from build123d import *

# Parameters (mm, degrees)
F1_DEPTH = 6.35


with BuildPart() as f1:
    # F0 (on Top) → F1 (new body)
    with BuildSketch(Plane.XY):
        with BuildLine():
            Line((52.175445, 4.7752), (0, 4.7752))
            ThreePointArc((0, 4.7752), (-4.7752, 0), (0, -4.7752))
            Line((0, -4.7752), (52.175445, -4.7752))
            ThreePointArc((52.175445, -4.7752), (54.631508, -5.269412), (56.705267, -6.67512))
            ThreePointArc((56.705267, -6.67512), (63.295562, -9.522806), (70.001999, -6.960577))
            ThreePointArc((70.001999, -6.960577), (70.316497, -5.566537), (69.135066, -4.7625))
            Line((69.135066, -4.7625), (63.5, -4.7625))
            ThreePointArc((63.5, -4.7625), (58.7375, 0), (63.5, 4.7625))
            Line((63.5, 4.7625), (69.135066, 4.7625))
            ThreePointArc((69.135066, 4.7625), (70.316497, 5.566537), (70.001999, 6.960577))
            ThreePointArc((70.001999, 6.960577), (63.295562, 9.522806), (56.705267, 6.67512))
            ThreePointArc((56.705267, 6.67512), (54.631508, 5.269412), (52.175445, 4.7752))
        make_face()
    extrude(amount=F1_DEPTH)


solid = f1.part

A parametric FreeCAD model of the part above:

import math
import FreeCAD as App
import Part
import Sketcher

V = App.Vector
Q = App.Units.Quantity

doc = App.newDocument("Part")
body = doc.addObject("PartDesign::Body", "Body")

# Sketch on XY plane
sketch1 = body.newObject("Sketcher::SketchObject", "Sketch")
sketch1.AttachmentSupport = (doc.getObject("XY_Plane"), [""])
sketch1.MapMode = "FlatFace"
sketch1.addGeometry(Part.LineSegment(V(52.2, 4.8, 0), V(0, 4.8, 0)), False)
sketch1.addGeometry(Part.ArcOfCircle(Part.Circle(V(0, 0, 0), V(0, 0, 1), 4.8), math.radians(90), math.radians(270)), False)
sketch1.addGeometry(Part.LineSegment(V(0, -4.8, 0), V(52.2, -4.8, 0)), False)
sketch1.addGeometry(Part.ArcOfCircle(Part.Circle(V(52.2, -11.1, 0), V(0, 0, 1), 6.4), math.radians(44), math.radians(90)), False)
sketch1.addGeometry(Part.ArcOfCircle(Part.Circle(V(63.5, 0, 0), V(0, 0, 1), 9.5), math.radians(-136), math.radians(-47)), False)
sketch1.addGeometry(Part.ArcOfCircle(Part.Circle(V(69.1, -6, 0), V(0, 0, 1), 1.3), math.radians(-47), math.radians(90)), False)
sketch1.addGeometry(Part.LineSegment(V(69.1, -4.8, 0), V(63.5, -4.8, 0)), False)
sketch1.addGeometry(Part.ArcOfCircle(Part.Circle(V(63.5, 0, 0), V(0, 0, 1), 4.8), math.radians(90), math.radians(270)), False)
sketch1.addGeometry(Part.LineSegment(V(63.5, 4.8, 0), V(69.1, 4.8, 0)), False)
sketch1.addGeometry(Part.ArcOfCircle(Part.Circle(V(69.1, 6, 0), V(0, 0, 1), 1.3), math.radians(-90), math.radians(47)), False)
sketch1.addGeometry(Part.ArcOfCircle(Part.Circle(V(63.5, 0, 0), V(0, 0, 1), 9.5), math.radians(47), math.radians(136)), False)
sketch1.addGeometry(Part.ArcOfCircle(Part.Circle(V(52.2, 11.1, 0), V(0, 0, 1), 6.4), math.radians(-90), math.radians(-44)), False)
sketch1.addConstraint(Sketcher.Constraint("Tangent", 0, 2, 1, 1))
sketch1.addConstraint(Sketcher.Constraint("Tangent", 1, 2, 2, 1))
sketch1.addConstraint(Sketcher.Constraint("Tangent", 2, 2, 3, 2))
sketch1.addConstraint(Sketcher.Constraint("Tangent", 3, 1, 4, 1))
sketch1.addConstraint(Sketcher.Constraint("Tangent", 4, 2, 5, 1))
sketch1.addConstraint(Sketcher.Constraint("Tangent", 5, 2, 6, 1))
sketch1.addConstraint(Sketcher.Constraint("Tangent", 6, 2, 7, 2))
sketch1.addConstraint(Sketcher.Constraint("Tangent", 7, 1, 8, 1))
sketch1.addConstraint(Sketcher.Constraint("Tangent", 8, 2, 9, 1))
sketch1.addConstraint(Sketcher.Constraint("Tangent", 9, 2, 10, 1))
sketch1.addConstraint(Sketcher.Constraint("Tangent", 10, 2, 11, 2))
sketch1.addConstraint(Sketcher.Constraint("Tangent", 11, 1, 0, 1))
sketch1.addConstraint(Sketcher.Constraint("Horizontal", 0))
sketch1.addConstraint(Sketcher.Constraint("Horizontal", 2))
sketch1.addConstraint(Sketcher.Constraint("Horizontal", 6))
sketch1.addConstraint(Sketcher.Constraint("Horizontal", 8))
sketch1.addConstraint(Sketcher.Constraint("Coincident", 1, 3, -1, 1))
sketch1.addConstraint(Sketcher.Constraint("Coincident", 7, 3, 4, 3))
sketch1.addConstraint(Sketcher.Constraint("Coincident", 10, 3, 4, 3))
sketch1.addConstraint(Sketcher.Constraint("Equal", 5, 9))
sketch1.addConstraint(Sketcher.Constraint("Equal", 4, 10))
sketch1.addConstraint(Sketcher.Constraint("Equal", 3, 11))
sketch1.addConstraint(Sketcher.Constraint("PointOnObject", 4, 3, -1))
sketch1.addConstraint(Sketcher.Constraint("Radius", 3, Q("0.25 in")))
sketch1.addConstraint(Sketcher.Constraint("Radius", 5, Q("0.05 in")))
sketch1.addConstraint(Sketcher.Constraint("Radius", 1, Q("0.188 in")))
sketch1.addConstraint(Sketcher.Constraint("Radius", 4, Q("0.375 in")))
sketch1.addConstraint(Sketcher.Constraint("Radius", 7, Q("0.1875 in")))
sketch1.addConstraint(Sketcher.Constraint("DistanceX", -1, 1, 4, 3, Q("2.5 in")))
pad1 = body.newObject("PartDesign::Pad", "Pad")
pad1.Profile = sketch1
pad1.Length = Q("0.25 in")

doc.recompute()
